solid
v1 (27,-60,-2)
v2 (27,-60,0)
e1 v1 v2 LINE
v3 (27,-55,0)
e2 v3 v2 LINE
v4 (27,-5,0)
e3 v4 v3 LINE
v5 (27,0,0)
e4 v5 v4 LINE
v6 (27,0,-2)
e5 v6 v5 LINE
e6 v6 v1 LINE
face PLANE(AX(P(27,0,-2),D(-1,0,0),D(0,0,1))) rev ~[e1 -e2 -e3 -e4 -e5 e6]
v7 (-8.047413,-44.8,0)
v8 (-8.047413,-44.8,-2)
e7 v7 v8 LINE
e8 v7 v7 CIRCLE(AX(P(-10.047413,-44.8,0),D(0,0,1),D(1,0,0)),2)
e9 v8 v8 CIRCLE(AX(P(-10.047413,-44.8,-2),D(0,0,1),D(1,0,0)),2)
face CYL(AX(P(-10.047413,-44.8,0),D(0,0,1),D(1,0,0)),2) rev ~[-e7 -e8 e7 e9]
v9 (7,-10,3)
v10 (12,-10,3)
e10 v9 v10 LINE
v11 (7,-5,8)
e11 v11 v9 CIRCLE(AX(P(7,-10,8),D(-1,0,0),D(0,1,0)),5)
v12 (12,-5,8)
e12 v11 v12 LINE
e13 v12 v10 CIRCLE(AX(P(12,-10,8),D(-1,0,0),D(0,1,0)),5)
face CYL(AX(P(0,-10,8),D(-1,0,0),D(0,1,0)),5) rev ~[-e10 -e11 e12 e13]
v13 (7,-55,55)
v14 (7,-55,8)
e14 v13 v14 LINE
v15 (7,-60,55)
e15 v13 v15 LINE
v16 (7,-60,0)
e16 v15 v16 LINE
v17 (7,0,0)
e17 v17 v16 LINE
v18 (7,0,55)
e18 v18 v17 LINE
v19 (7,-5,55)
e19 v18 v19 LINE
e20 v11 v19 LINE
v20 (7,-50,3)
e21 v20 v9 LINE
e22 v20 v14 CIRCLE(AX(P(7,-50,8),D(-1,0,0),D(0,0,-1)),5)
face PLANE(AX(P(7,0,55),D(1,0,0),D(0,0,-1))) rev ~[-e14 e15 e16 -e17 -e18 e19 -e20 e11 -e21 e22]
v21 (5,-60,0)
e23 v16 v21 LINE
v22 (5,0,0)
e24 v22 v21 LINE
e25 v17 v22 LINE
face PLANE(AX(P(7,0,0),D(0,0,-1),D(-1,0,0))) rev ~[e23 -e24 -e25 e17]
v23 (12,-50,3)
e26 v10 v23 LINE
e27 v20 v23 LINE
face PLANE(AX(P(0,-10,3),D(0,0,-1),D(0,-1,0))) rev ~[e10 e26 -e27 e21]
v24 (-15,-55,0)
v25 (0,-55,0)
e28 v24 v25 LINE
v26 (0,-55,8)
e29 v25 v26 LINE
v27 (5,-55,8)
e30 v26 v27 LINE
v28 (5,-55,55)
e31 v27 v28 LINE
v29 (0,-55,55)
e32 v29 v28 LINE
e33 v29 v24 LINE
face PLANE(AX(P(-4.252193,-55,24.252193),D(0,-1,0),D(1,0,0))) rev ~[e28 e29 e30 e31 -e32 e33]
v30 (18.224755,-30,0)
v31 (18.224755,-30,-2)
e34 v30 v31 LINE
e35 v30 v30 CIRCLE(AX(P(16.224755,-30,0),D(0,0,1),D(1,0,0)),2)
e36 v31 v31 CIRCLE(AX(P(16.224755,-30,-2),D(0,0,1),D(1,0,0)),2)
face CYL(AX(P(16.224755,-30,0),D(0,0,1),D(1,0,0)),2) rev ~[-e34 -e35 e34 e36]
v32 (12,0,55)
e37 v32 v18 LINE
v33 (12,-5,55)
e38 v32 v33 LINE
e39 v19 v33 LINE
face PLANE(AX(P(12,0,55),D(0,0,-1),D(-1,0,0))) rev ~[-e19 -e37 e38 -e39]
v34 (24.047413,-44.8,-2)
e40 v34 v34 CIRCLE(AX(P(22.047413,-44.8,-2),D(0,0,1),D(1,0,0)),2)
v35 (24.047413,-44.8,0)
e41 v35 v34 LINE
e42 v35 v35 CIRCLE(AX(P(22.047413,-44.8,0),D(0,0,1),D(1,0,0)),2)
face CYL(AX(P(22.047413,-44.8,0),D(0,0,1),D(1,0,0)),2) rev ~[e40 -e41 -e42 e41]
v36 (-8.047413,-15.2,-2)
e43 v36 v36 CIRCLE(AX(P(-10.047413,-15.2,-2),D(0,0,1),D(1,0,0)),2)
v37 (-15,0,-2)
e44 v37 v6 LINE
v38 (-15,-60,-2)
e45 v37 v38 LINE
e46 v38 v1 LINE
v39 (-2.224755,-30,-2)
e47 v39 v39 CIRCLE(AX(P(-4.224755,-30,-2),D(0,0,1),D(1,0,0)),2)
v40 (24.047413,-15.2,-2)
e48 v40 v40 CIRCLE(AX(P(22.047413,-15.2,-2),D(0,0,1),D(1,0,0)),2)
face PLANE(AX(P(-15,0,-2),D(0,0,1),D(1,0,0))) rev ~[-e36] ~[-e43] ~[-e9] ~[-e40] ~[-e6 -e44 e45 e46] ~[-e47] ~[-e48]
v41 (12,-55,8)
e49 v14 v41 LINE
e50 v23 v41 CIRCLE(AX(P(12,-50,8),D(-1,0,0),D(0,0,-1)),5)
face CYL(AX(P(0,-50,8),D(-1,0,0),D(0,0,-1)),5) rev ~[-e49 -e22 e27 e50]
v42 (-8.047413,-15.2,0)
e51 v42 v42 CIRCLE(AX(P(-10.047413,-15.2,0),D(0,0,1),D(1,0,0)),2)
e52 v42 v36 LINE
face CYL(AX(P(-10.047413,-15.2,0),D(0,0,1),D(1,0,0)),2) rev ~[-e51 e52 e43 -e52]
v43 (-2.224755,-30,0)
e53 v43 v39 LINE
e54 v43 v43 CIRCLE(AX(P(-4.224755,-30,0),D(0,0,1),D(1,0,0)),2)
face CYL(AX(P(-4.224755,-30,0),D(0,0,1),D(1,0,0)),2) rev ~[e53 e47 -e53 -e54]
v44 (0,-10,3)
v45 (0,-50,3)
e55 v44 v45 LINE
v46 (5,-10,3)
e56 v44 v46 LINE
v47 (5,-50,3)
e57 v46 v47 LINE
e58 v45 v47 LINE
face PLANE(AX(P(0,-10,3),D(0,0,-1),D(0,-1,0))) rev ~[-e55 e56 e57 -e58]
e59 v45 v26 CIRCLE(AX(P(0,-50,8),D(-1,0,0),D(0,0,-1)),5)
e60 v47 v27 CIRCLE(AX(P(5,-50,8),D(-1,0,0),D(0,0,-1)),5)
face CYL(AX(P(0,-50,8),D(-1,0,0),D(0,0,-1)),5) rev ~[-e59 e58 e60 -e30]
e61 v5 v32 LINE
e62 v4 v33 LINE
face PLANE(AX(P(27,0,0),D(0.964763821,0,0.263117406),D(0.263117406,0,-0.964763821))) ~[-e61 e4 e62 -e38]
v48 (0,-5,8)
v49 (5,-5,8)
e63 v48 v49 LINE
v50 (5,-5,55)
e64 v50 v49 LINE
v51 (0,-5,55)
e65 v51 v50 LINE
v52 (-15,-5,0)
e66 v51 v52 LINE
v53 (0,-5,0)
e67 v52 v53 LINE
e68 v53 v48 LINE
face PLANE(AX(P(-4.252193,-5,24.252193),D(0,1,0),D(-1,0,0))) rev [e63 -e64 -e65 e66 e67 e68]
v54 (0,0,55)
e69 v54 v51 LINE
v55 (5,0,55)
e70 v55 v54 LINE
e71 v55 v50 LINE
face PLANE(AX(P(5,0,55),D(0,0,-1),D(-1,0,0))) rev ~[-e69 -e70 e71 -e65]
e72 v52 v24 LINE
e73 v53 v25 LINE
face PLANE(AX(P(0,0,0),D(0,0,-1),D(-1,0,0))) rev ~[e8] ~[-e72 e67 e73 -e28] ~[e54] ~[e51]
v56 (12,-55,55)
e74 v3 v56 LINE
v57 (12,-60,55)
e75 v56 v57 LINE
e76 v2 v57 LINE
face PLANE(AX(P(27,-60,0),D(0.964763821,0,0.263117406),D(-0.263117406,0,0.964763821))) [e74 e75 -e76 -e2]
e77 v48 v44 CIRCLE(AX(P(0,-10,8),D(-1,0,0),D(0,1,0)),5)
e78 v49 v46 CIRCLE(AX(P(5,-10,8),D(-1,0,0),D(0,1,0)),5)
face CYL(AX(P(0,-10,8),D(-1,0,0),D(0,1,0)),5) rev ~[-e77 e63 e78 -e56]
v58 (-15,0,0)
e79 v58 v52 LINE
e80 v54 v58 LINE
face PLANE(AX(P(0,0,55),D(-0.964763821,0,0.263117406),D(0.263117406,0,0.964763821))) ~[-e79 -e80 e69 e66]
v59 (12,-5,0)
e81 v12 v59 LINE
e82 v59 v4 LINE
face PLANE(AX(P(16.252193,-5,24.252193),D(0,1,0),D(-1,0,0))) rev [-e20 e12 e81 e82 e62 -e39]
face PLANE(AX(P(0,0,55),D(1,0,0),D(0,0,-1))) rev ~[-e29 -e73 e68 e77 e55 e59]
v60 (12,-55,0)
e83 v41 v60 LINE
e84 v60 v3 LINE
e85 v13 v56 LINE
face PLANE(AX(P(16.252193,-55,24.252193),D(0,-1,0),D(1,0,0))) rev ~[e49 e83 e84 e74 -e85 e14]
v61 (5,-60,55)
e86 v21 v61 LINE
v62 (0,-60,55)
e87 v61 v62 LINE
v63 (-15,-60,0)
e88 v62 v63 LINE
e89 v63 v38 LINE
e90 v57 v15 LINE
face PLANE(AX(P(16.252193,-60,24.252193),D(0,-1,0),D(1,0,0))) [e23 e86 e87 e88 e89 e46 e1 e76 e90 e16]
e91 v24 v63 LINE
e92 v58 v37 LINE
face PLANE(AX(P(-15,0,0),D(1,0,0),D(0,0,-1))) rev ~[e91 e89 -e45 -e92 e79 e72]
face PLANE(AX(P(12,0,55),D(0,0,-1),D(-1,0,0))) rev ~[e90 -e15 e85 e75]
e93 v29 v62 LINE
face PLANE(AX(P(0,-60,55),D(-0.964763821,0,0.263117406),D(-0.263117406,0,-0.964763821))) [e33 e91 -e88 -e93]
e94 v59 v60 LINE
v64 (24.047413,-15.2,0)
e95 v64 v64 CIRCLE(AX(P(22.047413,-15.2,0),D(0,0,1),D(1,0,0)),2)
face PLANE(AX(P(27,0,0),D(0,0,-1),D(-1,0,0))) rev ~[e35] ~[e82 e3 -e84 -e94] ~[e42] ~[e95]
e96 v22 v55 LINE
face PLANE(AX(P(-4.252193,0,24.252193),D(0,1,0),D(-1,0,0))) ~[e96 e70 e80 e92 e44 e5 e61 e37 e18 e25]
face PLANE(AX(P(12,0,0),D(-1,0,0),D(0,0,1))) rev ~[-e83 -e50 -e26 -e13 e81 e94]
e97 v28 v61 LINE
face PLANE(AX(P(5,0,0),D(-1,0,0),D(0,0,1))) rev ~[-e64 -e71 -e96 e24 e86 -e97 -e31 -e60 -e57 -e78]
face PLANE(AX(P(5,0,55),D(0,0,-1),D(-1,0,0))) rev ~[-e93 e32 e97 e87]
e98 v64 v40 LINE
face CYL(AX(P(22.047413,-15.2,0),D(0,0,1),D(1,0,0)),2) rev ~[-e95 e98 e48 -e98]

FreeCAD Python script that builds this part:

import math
import FreeCAD as App
import Part
import Sketcher

V = App.Vector
Q = App.Units.Quantity


def add_polygon(sketch, points):
    """Adds a closed chain of lines whose ends are joined by coincident constraints."""
    first, n = sketch.GeometryCount, len(points)
    for a, b in zip(points, points[1:] + points[:1]):
        sketch.addGeometry(Part.LineSegment(App.Vector(*a, 0), App.Vector(*b, 0)), False)
    for i in range(n):
        sketch.addConstraint(Sketcher.Constraint("Coincident", first + i, 2, first + (i + 1) % n, 1))

doc = App.newDocument("Part")
body = doc.addObject("PartDesign::Body", "Body")

sketch1 = doc.addObject("Sketcher::SketchObject", "Sketch")
body.addObject(sketch1)
sketch1.AttachmentSupport = (doc.XZ_Plane, [""])
sketch1.MapMode = "FlatFace"
add_polygon(sketch1, [(0, 55), (0, 0), (-15, 0), (-15, -2), (27, -2), (27, 0), (12, 0), (12, 55), (7, 55), (7, 0), (5, 0), (5, 55)])
sketch1.addConstraint(Sketcher.Constraint("Vertical", 0))
sketch1.addConstraint(Sketcher.Constraint("Horizontal", 1))
sketch1.addConstraint(Sketcher.Constraint("Vertical", 2))
sketch1.addConstraint(Sketcher.Constraint("Horizontal", 3))
sketch1.addConstraint(Sketcher.Constraint("Vertical", 4))
sketch1.addConstraint(Sketcher.Constraint("Horizontal", 5))
sketch1.addConstraint(Sketcher.Constraint("Vertical", 6))
sketch1.addConstraint(Sketcher.Constraint("Horizontal", 7))
sketch1.addConstraint(Sketcher.Constraint("Vertical", 8))
sketch1.addConstraint(Sketcher.Constraint("Horizontal", 9))
sketch1.addConstraint(Sketcher.Constraint("Vertical", 10))
sketch1.addConstraint(Sketcher.Constraint("Horizontal", 11))
sketch1.addConstraint(Sketcher.Constraint("Coincident", 0, 2, -1, 1))
sketch1.addConstraint(Sketcher.Constraint("PointOnObject", 4, 2, -1))
sketch1.addConstraint(Sketcher.Constraint("PointOnObject", 8, 2, -1))
sketch1.addConstraint(Sketcher.Constraint("Horizontal", 7, 2, 10, 2))
sketch1.addConstraint(Sketcher.Constraint("Equal", 1, 5))
sketch1.addConstraint(Sketcher.Constraint("Equal", 7, 11))
sketch1.addConstraint(Sketcher.Constraint("Equal", 9, 2))
sketch1.addConstraint(Sketcher.Constraint("DistanceX", 1, 2, 1, 1, Q("15 mm")))
sketch1.addConstraint(Sketcher.Constraint("DistanceX", 3, 1, 3, 2, Q("42 mm")))
sketch1.addConstraint(Sketcher.Constraint("DistanceX", 7, 2, 7, 1, Q("5 mm")))
sketch1.addConstraint(Sketcher.Constraint("DistanceY", 0, 2, 0, 1, Q("55 mm")))
pad1 = doc.addObject("PartDesign::Pad", "Pad")
body.addObject(pad1)
pad1.Profile = sketch1
pad1.Length = 60

sketch2 = doc.addObject("Sketcher::SketchObject", "Sketch001")
body.addObject(sketch2)
sketch2.AttachmentSupport = (doc.YZ_Plane, [""])
sketch2.MapMode = "FlatFace"
sketch2.addGeometry(Part.LineSegment(V(-55, 55, 0), V(-5, 55, 0)), False)
sketch2.addGeometry(Part.LineSegment(V(-5, 55, 0), V(-5, 8, 0)), False)
sketch2.addGeometry(Part.ArcOfCircle(Part.Circle(V(-10, 8, 0), V(0, 0, 1), 5), math.radians(-90), math.radians(0)), False)
sketch2.addGeometry(Part.LineSegment(V(-10, 3, 0), V(-50, 3, 0)), False)
sketch2.addGeometry(Part.ArcOfCircle(Part.Circle(V(-50, 8, 0), V(0, 0, 1), 5), math.radians(180), math.radians(270)), False)
sketch2.addGeometry(Part.LineSegment(V(-55, 8, 0), V(-55, 55, 0)), False)
sketch2.addConstraint(Sketcher.Constraint("Coincident", 0, 2, 1, 1))
sketch2.addConstraint(Sketcher.Constraint("Tangent", 1, 2, 2, 2))
sketch2.addConstraint(Sketcher.Constraint("Tangent", 2, 1, 3, 1))
sketch2.addConstraint(Sketcher.Constraint("Tangent", 3, 2, 4, 2))
sketch2.addConstraint(Sketcher.Constraint("Tangent", 4, 1, 5, 1))
sketch2.addConstraint(Sketcher.Constraint("Coincident", 5, 2, 0, 1))
sketch2.addConstraint(Sketcher.Constraint("Horizontal", 0))
sketch2.addConstraint(Sketcher.Constraint("Vertical", 1))
sketch2.addConstraint(Sketcher.Constraint("Horizontal", 3))
sketch2.addConstraint(Sketcher.Constraint("Vertical", 5))
sketch2.addConstraint(Sketcher.Constraint("Equal", 2, 4))
sketch2.addConstraint(Sketcher.Constraint("Radius", 2, Q("5 mm")))
sketch2.addConstraint(Sketcher.Constraint("DistanceX", 0, 1, 0, 2, Q("50 mm")))
sketch2.addConstraint(Sketcher.Constraint("DistanceY", 1, 2, 1, 1, Q("47 mm")))
sketch2.addConstraint(Sketcher.Constraint("DistanceX", 2, 3, -1, 1, Q("10 mm")))
sketch2.addConstraint(Sketcher.Constraint("DistanceY", -1, 1, 2, 3, Q("8 mm")))
pocket1 = doc.addObject("PartDesign::Pocket", "Pocket")
body.addObject(pocket1)
pocket1.Profile = sketch2
pocket1.Type = "ThroughAll"
pocket1.Reversed = True

sketch3 = doc.addObject("Sketcher::SketchObject", "Sketch002")
body.addObject(sketch3)
sketch3.AttachmentSupport = (doc.XY_Plane, [""])
sketch3.MapMode = "FlatFace"
sketch3.addGeometry(Part.Circle(V(-10, -15.2, 0), V(0, 0, 1), 2), False)
sketch3.addGeometry(Part.Circle(V(-10, -44.8, 0), V(0, 0, 1), 2), False)
sketch3.addGeometry(Part.Circle(V(-4.2, -30, 0), V(0, 0, 1), 2), False)
sketch3.addGeometry(Part.Circle(V(16.2, -30, 0), V(0, 0, 1), 2), False)
sketch3.addGeometry(Part.Circle(V(22, -44.8, 0), V(0, 0, 1), 2), False)
sketch3.addGeometry(Part.Circle(V(22, -15.2, 0), V(0, 0, 1), 2), False)
sketch3.addConstraint(Sketcher.Constraint("Equal", 0, 1))
sketch3.addConstraint(Sketcher.Constraint("Equal", 1, 2))
sketch3.addConstraint(Sketcher.Constraint("Equal", 2, 3))
sketch3.addConstraint(Sketcher.Constraint("Equal", 3, 4))
sketch3.addConstraint(Sketcher.Constraint("Equal", 4, 5))
sketch3.addConstraint(Sketcher.Constraint("Horizontal", 2, 3, 3, 3))
sketch3.addConstraint(Sketcher.Constraint("Horizontal", 1, 3, 4, 3))
sketch3.addConstraint(Sketcher.Constraint("Horizontal", 0, 3, 5, 3))
sketch3.addConstraint(Sketcher.Constraint("Vertical", 0, 3, 1, 3))
sketch3.addConstraint(Sketcher.Constraint("Vertical", 4, 3, 5, 3))
sketch3.addConstraint(Sketcher.Constraint("Diameter", 0, Q("4 mm")))
sketch3.addConstraint(Sketcher.Constraint("DistanceY", 2, 3, -1, 1, Q("30 mm")))
sketch3.addConstraint(Sketcher.Constraint("DistanceY", 0, 3, -1, 1, Q("15.2 mm")))
sketch3.addConstraint(Sketcher.Constraint("DistanceY", 1, 3, -1, 1, Q("44.8 mm")))
sketch3.addConstraint(Sketcher.Constraint("DistanceX", 1, 3, 2, 3, Q("5.822658 mm")))
sketch3.addConstraint(Sketcher.Constraint("DistanceX", 2, 3, 3, 3, Q("20.449511 mm")))
sketch3.addConstraint(Sketcher.Constraint("DistanceX", 3, 3, 4, 3, Q("5.822658 mm")))
sketch3.addConstraint(Sketcher.Constraint("DistanceX", 0, 3, -1, 1, Q("10.047413 mm")))
pocket2 = doc.addObject("PartDesign::Pocket", "Pocket001")
body.addObject(pocket2)
pocket2.Profile = sketch3
pocket2.Length = 25
body2 = doc.addObject("PartDesign::Body", "Body001")

sketch4 = doc.addObject("Sketcher::SketchObject", "Sketch003")
body2.addObject(sketch4)
sketch4.AttachmentSupport = (doc.getObject("XZ_Plane001"), [""])
sketch4.MapMode = "FlatFace"
sketch4.AttachmentOffset = App.Placement(V(0, 0, 60), App.Rotation())
add_polygon(sketch4, [(0, 55), (-15, 0), (0, 0)])
sketch4.addConstraint(Sketcher.Constraint("Horizontal", 1))
sketch4.addConstraint(Sketcher.Constraint("Vertical", 2))
sketch4.addConstraint(Sketcher.Constraint("Coincident", 1, 2, -1, 1))
sketch4.addConstraint(Sketcher.Constraint("DistanceX", 1, 1, 1, 2, Q("15 mm")))
sketch4.addConstraint(Sketcher.Constraint("DistanceY", 2, 1, 2, 2, Q("55 mm")))
pad2 = doc.addObject("PartDesign::Pad", "Pad001")
body2.addObject(pad2)
pad2.Profile = sketch4
pad2.Length = 5
pad2.Reversed = True
body3 = doc.addObject("PartDesign::Body", "Body002")

sketch5 = doc.addObject("Sketcher::SketchObject", "Sketch004")
body3.addObject(sketch5)
sketch5.AttachmentSupport = (doc.getObject("XZ_Plane002"), [""])
sketch5.MapMode = "FlatFace"
sketch5.AttachmentOffset = App.Placement(V(0, 0, 60), App.Rotation())
add_polygon(sketch5, [(27, 0), (12, 55), (12, 0)])
sketch5.addConstraint(Sketcher.Constraint("Vertical", 1))
sketch5.addConstraint(Sketcher.Constraint("Horizontal", 2))
sketch5.addConstraint(Sketcher.Constraint("PointOnObject", 1, 2, -1))
sketch5.addConstraint(Sketcher.Constraint("DistanceX", 2, 1, 2, 2, Q("15 mm")))
sketch5.addConstraint(Sketcher.Constraint("DistanceY", 1, 2, 1, 1, Q("55 mm")))
sketch5.addConstraint(Sketcher.Constraint("DistanceX", -1, 1, 0, 2, Q("12 mm")))
pad3 = doc.addObject("PartDesign::Pad", "Pad002")
body3.addObject(pad3)
pad3.Profile = sketch5
pad3.Length = 5
pad3.Reversed = True
doc.recompute()

body4 = doc.addObject("PartDesign::Body", "Body003")
body4.BaseFeature = body2
boolean = doc.addObject("PartDesign::Boolean", "Boolean")
body.addObject(boolean)
boolean.Type = "Fuse"
boolean.addObjects([body4])
doc.recompute()

body5 = doc.addObject("PartDesign::Body", "Body004")
body5.BaseFeature = body3
boolean2 = doc.addObject("PartDesign::Boolean", "Boolean001")
body.addObject(boolean2)
boolean2.Type = "Fuse"
boolean2.addObjects([body5])
doc.recompute()

mirroring = doc.addObject("Part::Mirroring", "Mirroring")
mirroring.Source = body3
mirroring.Base = V(0, -30, 0)
mirroring.Normal = V(0, -1, 0)
body6 = doc.addObject("PartDesign::Body", "Body005")
body6.BaseFeature = mirroring
boolean3 = doc.addObject("PartDesign::Boolean", "Boolean002")
body.addObject(boolean3)
boolean3.Type = "Fuse"
boolean3.addObjects([body6])
doc.recompute()

mirroring2 = doc.addObject("Part::Mirroring", "Mirroring001")
mirroring2.Source = body2
mirroring2.Base = V(0, -30, 0)
mirroring2.Normal = V(0, -1, 0)
body7 = doc.addObject("PartDesign::Body", "Body006")
body7.BaseFeature = mirroring2
boolean4 = doc.addObject("PartDesign::Boolean", "Boolean003")
body.addObject(boolean4)
boolean4.Type = "Fuse"
boolean4.addObjects([body7])
doc.recompute()
mirroring.Visibility = False
mirroring2.Visibility = False

doc.recompute()
